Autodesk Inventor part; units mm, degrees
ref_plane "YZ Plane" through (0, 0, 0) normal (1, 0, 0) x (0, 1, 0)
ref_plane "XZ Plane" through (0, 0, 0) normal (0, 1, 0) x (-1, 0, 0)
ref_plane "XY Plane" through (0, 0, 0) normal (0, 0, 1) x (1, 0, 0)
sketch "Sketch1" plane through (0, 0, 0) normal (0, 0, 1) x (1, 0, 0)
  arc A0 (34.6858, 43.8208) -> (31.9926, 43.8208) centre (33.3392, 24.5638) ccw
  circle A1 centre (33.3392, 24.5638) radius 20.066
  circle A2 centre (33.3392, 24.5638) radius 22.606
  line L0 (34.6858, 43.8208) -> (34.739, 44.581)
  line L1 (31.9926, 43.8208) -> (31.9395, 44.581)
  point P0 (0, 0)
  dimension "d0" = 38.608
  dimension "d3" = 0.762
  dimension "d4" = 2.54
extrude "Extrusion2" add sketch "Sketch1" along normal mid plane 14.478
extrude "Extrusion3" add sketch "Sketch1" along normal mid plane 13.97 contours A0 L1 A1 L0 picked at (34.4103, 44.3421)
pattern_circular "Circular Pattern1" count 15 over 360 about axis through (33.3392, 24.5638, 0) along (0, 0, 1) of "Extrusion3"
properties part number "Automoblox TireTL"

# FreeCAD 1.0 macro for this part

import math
import FreeCAD as App
import Part
import Sketcher
from FreeCAD import Vector
Q = App.Units.Quantity

doc = App.newDocument("Part")
body = doc.addObject("PartDesign::Body", "Body")

sketch1 = doc.addObject("Sketcher::SketchObject", "Sketch")
body.addObject(sketch1)
sketch1.AttachmentSupport = (doc.XY_Plane, [""])
sketch1.MapMode = "FlatFace"
sketch1.addGeometry(Part.Circle(Vector(33, 25, 0), Vector(0, 0, 1), 23), False)
sketch1.addGeometry(Part.Circle(Vector(33, 25, 0), Vector(0, 0, 1), 20), False)
sketch1.addConstraint(Sketcher.Constraint("Coincident", 1, 3, 0, 3))
sketch1.addConstraint(Sketcher.Constraint("Diameter", 0, Q("1.78 in")))
sketch1.addConstraint(Sketcher.Constraint("Diameter", 1, Q("1.58 in")))
sketch1.addConstraint(Sketcher.Constraint("DistanceX", -1, 1, 0, 3, Q("33.3392 mm")))
sketch1.addConstraint(Sketcher.Constraint("DistanceY", -1, 1, 0, 3, Q("24.5638 mm")))
pad1 = doc.addObject("PartDesign::Pad", "Pad")
body.addObject(pad1)
pad1.Profile = sketch1
pad1.Length = Q("0.57 in")
pad1.Midplane = True

sketch2 = doc.addObject("Sketcher::SketchObject", "Sketch001")
body.addObject(sketch2)
sketch2.AttachmentSupport = (doc.XY_Plane, [""])
sketch2.MapMode = "FlatFace"
sketch2.addGeometry(Part.ArcOfCircle(Part.Circle(Vector(33.3, 24.6, 0), Vector(0, 0, 1), 19.3), math.radians(86), math.radians(94)), False)
sketch2.addGeometry(Part.LineSegment(Vector(34.7, 43.8, 0), Vector(34.7, 44.6, 0)), False)
sketch2.addGeometry(Part.ArcOfCircle(Part.Circle(Vector(33.3, 24.6, 0), Vector(0, 0, 1), 20.1), math.radians(86), math.radians(94)), False)
sketch2.addGeometry(Part.LineSegment(Vector(31.9, 44.6, 0), Vector(32, 43.8, 0)), False)
sketch2.addConstraint(Sketcher.Constraint("Coincident", 0, 1, 1, 1))
sketch2.addConstraint(Sketcher.Constraint("Coincident", 1, 2, 2, 1))
sketch2.addConstraint(Sketcher.Constraint("Coincident", 2, 2, 3, 1))
sketch2.addConstraint(Sketcher.Constraint("Coincident", 3, 2, 0, 2))
sketch2.addConstraint(Sketcher.Constraint("Coincident", 2, 3, 0, 3))
sketch2.addConstraint(Sketcher.Constraint("Horizontal", 1, 2, 2, 2))
sketch2.addConstraint(Sketcher.Constraint("Horizontal", 0, 1, 3, 2))
sketch2.addConstraint(Sketcher.Constraint("Radius", 0, Q("0.76 in")))
sketch2.addConstraint(Sketcher.Constraint("Distance", 1, Q("0.03 in")))
sketch2.addConstraint(Sketcher.Constraint("DistanceX", 0, 1, 1, 2, Q("0.0021 in")))
sketch2.addConstraint(Sketcher.Constraint("DistanceX", 0, 3, 1, 2, Q("0.0551 in")))
sketch2.addConstraint(Sketcher.Constraint("DistanceX", -1, 1, 0, 3, Q("33.3392 mm")))
sketch2.addConstraint(Sketcher.Constraint("DistanceY", -1, 1, 0, 3, Q("24.5638 mm")))
pad2 = doc.addObject("PartDesign::Pad", "Pad001")
body.addObject(pad2)
pad2.Profile = sketch2
pad2.Length = Q("0.55 in")
pad2.Midplane = True
doc.recompute()

datumline = doc.addObject("PartDesign::Line", "DatumLine")
body.addObject(datumline)
datumline.Placement = App.Placement(Vector(33.3392, 24.5638, 0), App.Rotation(Vector(0, 0, 1), Vector(0, 0, 1)))
polarpattern = doc.addObject("PartDesign::PolarPattern", "PolarPattern")
body.addObject(polarpattern)
polarpattern.Originals = [pad2]
polarpattern.Axis = (datumline, [""])
polarpattern.Angle = 360
polarpattern.Occurrences = 15
body.Tip = polarpattern

doc.recompute()
